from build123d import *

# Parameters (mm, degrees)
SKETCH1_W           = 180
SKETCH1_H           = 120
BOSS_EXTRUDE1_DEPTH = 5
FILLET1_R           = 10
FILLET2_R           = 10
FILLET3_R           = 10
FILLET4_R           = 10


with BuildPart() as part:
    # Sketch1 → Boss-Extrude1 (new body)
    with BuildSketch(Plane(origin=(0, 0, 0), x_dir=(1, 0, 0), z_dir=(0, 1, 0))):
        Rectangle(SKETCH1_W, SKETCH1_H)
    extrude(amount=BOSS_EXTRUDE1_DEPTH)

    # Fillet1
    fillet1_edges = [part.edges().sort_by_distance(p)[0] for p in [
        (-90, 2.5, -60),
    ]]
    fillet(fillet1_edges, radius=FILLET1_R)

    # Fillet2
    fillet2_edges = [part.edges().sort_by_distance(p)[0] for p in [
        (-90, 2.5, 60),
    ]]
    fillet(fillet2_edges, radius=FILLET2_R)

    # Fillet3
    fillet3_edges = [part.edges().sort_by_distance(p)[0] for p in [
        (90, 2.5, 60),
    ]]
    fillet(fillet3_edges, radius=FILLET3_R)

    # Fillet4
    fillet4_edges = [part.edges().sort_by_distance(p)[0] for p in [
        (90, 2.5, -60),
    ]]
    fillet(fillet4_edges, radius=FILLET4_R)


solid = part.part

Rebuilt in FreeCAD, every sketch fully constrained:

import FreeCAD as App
import Part
import Sketcher

V = App.Vector


def edges_at(feature, points):
    """Names of the edges that pass closest to the given points."""
    edges = feature.Shape.Edges
    near = lambda p: min(range(len(edges)), key=lambda i: edges[i].distToShape(Part.Vertex(*p))[0])
    return sorted({f"Edge{near(p) + 1}" for p in points})


def add_polygon(sketch, points):
    """Adds a closed chain of lines whose ends are joined by coincident constraints."""
    first, n = sketch.GeometryCount, len(points)
    for a, b in zip(points, points[1:] + points[:1]):
        sketch.addGeometry(Part.LineSegment(App.Vector(*a, 0), App.Vector(*b, 0)), False)
    for i in range(n):
        sketch.addConstraint(Sketcher.Constraint("Coincident", first + i, 2, first + (i + 1) % n, 1))

doc = App.newDocument("Part")
body = doc.addObject("PartDesign::Body", "Body")

# Sketch on XZ plane
sketch1 = body.newObject("Sketcher::SketchObject", "Sketch")
sketch1.AttachmentSupport = (doc.getObject("XZ_Plane"), [""])
sketch1.MapMode = "FlatFace"
add_polygon(sketch1, [(-90, -60), (-90, 60), (90, 60), (90, -60)])  # lines 0-3
sketch1.addConstraint([
    Sketcher.Constraint("Vertical", 0),
    Sketcher.Constraint("Horizontal", 1),
    Sketcher.Constraint("Vertical", 2),
    Sketcher.Constraint("Horizontal", 3),
    Sketcher.Constraint("Symmetric", 0, 2, 2, 2, -1, 1),
    Sketcher.Constraint("DistanceX", 1, 1, 1, 2, 180.0),
    Sketcher.Constraint("DistanceY", 0, 1, 0, 2, 120.0),
])
pad1 = body.newObject("PartDesign::Pad", "Pad")
pad1.Profile = sketch1
pad1.Length = 5
pad1.Reversed = True
doc.recompute()

fillet = body.newObject("PartDesign::Fillet", "Fillet")
fillet.Base = (pad1, edges_at(pad1, [(-90, 2.5, -60)]))
fillet.Radius = 10
doc.recompute()

fillet2 = body.newObject("PartDesign::Fillet", "Fillet001")
fillet2.Base = (fillet, edges_at(fillet, [(-90, 2.5, 60)]))
fillet2.Radius = 10
doc.recompute()

fillet3 = body.newObject("PartDesign::Fillet", "Fillet002")
fillet3.Base = (fillet2, edges_at(fillet2, [(90, 2.5, 60)]))
fillet3.Radius = 10
doc.recompute()

fillet4 = body.newObject("PartDesign::Fillet", "Fillet003")
fillet4.Base = (fillet3, edges_at(fillet3, [(90, 2.5, -60)]))
fillet4.Radius = 10

doc.recompute()
